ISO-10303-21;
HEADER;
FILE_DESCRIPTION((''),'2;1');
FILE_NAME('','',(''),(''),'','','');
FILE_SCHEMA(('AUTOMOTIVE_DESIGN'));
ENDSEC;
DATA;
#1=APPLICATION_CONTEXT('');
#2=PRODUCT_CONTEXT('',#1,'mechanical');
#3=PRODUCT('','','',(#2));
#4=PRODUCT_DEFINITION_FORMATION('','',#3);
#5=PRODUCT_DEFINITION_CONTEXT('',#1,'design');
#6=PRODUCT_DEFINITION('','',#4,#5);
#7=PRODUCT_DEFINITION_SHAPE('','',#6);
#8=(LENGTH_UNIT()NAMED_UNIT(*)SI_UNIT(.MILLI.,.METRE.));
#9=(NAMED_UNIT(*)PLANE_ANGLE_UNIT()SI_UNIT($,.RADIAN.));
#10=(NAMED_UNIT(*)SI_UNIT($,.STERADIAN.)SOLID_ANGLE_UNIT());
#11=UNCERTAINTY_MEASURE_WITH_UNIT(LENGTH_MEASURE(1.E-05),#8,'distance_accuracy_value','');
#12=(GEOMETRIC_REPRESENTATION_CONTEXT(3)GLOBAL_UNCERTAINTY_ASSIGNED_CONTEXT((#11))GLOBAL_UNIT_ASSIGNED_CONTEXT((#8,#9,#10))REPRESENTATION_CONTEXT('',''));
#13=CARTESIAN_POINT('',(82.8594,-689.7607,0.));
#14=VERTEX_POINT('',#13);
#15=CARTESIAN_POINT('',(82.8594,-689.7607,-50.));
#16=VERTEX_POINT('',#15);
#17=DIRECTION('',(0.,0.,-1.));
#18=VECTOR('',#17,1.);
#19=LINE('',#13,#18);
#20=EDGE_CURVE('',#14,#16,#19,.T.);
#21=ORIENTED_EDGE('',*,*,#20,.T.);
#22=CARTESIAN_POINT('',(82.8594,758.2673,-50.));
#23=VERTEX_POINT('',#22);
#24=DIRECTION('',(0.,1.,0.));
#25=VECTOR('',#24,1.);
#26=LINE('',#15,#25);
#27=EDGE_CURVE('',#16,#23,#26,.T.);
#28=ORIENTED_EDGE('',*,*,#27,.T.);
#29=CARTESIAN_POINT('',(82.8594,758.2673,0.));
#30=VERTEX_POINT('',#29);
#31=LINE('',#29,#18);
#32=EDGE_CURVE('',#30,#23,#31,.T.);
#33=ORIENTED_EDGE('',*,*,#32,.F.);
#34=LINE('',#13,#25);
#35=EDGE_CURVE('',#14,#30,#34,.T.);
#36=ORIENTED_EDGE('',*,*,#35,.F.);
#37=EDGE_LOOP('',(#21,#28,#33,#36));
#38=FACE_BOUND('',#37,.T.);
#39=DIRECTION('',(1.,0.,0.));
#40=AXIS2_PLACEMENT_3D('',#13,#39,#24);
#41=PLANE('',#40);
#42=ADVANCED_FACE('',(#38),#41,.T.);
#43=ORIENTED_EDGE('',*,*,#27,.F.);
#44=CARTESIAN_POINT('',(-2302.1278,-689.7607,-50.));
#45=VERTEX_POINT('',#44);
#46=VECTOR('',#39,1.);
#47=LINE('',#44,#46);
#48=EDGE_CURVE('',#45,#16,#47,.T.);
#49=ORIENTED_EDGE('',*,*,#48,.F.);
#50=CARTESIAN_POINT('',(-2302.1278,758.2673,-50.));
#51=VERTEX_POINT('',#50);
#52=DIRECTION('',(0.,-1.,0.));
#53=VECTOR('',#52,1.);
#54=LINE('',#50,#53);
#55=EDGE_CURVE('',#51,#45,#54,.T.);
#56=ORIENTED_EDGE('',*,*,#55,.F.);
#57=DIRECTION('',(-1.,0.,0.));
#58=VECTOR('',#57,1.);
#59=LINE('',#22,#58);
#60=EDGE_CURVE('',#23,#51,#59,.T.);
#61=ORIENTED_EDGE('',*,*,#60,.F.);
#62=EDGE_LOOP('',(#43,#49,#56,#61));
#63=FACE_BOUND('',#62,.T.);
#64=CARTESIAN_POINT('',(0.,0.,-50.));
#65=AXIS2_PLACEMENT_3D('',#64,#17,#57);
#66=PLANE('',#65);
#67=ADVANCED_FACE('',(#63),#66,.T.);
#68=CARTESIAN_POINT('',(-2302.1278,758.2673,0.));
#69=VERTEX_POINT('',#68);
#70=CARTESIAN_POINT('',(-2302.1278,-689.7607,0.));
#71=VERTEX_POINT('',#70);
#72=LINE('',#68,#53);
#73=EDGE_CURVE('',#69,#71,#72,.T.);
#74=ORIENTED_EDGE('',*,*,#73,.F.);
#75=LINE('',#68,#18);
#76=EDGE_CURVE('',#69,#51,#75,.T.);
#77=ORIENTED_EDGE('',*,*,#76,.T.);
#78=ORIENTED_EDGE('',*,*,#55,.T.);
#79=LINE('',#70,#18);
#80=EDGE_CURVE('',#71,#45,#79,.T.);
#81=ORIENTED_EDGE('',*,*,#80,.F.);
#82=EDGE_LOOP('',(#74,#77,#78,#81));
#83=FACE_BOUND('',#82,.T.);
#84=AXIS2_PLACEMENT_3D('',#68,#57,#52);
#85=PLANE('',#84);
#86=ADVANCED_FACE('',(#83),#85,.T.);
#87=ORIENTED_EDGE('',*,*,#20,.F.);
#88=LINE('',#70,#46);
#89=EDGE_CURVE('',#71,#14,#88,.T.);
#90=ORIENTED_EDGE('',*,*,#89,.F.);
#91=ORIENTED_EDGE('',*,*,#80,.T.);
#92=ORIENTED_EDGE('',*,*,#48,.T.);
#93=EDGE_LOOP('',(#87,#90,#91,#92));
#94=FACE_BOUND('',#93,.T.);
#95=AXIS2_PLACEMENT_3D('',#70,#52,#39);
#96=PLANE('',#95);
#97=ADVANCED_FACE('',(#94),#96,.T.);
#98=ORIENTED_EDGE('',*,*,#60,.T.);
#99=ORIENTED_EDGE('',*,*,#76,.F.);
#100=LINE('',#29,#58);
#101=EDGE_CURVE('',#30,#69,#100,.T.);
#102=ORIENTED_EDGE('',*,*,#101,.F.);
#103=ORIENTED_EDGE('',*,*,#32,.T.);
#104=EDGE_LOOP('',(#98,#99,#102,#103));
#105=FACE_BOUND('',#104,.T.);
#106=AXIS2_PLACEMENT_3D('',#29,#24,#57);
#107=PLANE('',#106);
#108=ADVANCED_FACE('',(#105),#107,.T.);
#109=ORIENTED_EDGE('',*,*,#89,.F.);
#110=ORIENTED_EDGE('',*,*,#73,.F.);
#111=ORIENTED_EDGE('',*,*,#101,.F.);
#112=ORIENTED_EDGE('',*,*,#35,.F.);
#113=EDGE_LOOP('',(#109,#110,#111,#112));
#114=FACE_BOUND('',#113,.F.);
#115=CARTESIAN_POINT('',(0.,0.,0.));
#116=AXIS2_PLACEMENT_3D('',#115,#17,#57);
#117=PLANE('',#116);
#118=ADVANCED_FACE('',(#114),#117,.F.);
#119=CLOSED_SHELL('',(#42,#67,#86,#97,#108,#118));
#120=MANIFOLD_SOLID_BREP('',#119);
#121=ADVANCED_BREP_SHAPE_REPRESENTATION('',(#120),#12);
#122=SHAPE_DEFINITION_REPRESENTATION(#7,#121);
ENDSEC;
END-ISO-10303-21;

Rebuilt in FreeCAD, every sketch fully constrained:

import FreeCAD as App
import Part
import Sketcher
Q = App.Units.Quantity

doc = App.newDocument("Part")
params = doc.addObject("Spreadsheet::Sheet", "Params")
for row, (alias, value) in enumerate([
    ("pad1_length", "50 mm"),
], start=1):
    params.set(f"A{row}", alias)
    params.set(f"B{row}", "=" + value)
    params.setAlias(f"B{row}", alias)

body = doc.addObject("PartDesign::Body", "Body")

sketch1 = body.newObject("Sketcher::SketchObject", "Sketch")
sketch1.AttachmentSupport = (doc.getObject("XY_Plane"), [""])
sketch1.MapMode = "FlatFace"
sketch1.addGeometry([
    Part.LineSegment(App.Vector(-2302, 758, 0), App.Vector(83, 758, 0)),
    Part.LineSegment(App.Vector(83, 758, 0), App.Vector(83, -690, 0)),
    Part.LineSegment(App.Vector(83, -690, 0), App.Vector(-2302, -690, 0)),
    Part.LineSegment(App.Vector(-2302, -690, 0), App.Vector(-2302, 758, 0)),
], False)
sketch1.addConstraint([
    Sketcher.Constraint("Coincident", 0, 2, 1, 1),
    Sketcher.Constraint("Coincident", 1, 2, 2, 1),
    Sketcher.Constraint("Coincident", 2, 2, 3, 1),
    Sketcher.Constraint("Coincident", 3, 2, 0, 1),
    Sketcher.Constraint("Horizontal", 0),
    Sketcher.Constraint("Vertical", 1),
    Sketcher.Constraint("Horizontal", 2),
    Sketcher.Constraint("Vertical", 3),
    Sketcher.Constraint("DistanceY", 1, 2, 1, 1, Q("1448.028 mm")),
    Sketcher.Constraint("DistanceX", 0, 1, 0, 2, Q("2384.9872 mm")),
    Sketcher.Constraint("DistanceX", -1, 1, 0, 2, Q("82.8594 mm")),
    Sketcher.Constraint("DistanceY", -1, 1, 0, 2, Q("758.2673 mm")),
])
pad1 = body.newObject("PartDesign::Pad", "Pad")
pad1.Profile = sketch1
pad1.setExpression("Length", "Params.pad1_length")
pad1.Reversed = True

doc.recompute()
